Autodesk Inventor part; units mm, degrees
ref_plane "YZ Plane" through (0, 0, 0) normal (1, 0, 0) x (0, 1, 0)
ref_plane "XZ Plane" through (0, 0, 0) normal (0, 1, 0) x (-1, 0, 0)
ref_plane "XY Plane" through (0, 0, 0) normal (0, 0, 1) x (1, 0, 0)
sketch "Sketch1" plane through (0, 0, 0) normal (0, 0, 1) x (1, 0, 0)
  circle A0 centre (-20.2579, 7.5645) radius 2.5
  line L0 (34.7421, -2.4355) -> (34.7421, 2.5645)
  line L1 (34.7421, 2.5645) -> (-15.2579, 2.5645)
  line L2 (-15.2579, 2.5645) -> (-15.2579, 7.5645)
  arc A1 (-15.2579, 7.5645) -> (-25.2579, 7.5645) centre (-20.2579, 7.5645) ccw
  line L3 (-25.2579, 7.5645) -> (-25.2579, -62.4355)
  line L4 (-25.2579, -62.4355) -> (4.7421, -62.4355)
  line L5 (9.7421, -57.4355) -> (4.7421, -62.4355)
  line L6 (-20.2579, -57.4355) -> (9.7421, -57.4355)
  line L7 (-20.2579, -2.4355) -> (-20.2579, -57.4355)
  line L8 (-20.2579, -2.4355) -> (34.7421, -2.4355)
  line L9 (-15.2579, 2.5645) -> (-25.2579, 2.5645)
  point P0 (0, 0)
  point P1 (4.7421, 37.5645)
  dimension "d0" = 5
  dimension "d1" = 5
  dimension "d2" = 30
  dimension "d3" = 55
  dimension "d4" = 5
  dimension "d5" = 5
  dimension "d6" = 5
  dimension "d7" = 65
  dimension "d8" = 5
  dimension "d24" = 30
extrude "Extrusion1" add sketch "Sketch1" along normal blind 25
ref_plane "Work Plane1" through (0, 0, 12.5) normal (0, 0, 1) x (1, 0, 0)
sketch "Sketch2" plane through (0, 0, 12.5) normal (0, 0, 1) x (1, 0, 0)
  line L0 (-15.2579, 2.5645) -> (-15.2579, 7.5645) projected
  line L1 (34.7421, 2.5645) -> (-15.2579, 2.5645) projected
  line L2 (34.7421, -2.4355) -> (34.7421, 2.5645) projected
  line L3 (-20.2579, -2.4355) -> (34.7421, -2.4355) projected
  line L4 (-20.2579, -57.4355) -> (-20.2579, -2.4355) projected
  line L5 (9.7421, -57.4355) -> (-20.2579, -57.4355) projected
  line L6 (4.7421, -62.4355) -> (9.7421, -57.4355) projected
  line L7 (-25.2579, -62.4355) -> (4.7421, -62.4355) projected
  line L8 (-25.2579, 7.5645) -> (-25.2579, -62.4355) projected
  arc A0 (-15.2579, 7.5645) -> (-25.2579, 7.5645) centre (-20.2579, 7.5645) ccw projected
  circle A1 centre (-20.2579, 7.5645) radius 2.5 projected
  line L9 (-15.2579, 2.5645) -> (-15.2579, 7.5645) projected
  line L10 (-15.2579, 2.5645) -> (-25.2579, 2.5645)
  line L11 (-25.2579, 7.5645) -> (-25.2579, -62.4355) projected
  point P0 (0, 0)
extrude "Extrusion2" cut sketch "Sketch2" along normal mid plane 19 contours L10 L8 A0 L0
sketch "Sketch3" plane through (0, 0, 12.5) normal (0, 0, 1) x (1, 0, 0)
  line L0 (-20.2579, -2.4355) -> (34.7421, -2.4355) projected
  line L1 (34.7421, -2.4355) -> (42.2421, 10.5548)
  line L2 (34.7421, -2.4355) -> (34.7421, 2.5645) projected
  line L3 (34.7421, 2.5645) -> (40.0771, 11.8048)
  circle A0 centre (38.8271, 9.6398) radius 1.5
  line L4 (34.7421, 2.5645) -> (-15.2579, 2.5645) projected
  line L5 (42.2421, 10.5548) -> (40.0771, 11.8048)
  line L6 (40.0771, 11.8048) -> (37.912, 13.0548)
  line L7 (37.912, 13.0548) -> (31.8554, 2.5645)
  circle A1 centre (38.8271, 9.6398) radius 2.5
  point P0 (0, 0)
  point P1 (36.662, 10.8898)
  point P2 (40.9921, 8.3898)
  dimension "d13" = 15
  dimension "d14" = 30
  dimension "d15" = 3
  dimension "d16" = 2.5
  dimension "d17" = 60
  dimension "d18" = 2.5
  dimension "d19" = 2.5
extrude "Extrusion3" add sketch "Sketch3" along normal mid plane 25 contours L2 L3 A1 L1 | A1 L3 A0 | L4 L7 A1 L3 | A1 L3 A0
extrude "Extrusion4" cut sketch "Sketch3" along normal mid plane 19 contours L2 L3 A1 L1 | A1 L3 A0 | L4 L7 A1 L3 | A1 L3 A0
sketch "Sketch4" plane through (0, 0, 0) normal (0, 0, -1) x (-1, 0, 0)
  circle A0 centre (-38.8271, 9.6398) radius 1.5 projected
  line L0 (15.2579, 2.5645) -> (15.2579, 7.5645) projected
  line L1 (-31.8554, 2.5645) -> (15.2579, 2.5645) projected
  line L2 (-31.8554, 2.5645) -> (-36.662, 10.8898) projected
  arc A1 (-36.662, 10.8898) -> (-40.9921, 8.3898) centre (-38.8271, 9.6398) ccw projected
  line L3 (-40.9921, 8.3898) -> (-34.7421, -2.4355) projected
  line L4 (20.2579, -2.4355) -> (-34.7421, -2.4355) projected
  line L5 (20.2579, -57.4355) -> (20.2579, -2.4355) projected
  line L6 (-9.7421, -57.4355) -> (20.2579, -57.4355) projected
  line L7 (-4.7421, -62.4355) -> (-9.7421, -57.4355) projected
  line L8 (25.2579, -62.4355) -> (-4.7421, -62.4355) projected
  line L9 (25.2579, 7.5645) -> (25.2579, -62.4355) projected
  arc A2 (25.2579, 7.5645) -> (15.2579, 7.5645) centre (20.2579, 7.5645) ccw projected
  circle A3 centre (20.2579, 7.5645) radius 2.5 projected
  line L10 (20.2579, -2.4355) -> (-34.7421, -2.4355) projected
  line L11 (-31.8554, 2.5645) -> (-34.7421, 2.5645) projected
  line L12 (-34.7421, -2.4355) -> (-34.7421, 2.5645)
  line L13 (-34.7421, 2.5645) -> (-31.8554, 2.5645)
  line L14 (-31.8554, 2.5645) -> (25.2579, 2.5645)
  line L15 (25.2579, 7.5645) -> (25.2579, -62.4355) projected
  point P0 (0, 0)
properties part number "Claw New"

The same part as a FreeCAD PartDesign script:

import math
import FreeCAD as App
import Part
import Sketcher
Q = App.Units.Quantity

doc = App.newDocument("Part")
body = doc.addObject("PartDesign::Body", "Body")

# Sketch on XY plane
sketch1 = doc.addObject("Sketcher::SketchObject", "Sketch")
body.addObject(sketch1)
sketch1.AttachmentSupport = (doc.XY_Plane, [""])
sketch1.MapMode = "FlatFace"
sketch1.addGeometry(Part.LineSegment(App.Vector(-20.3, -2.4, 0), App.Vector(34.7, -2.4, 0)), False)
sketch1.addGeometry(Part.LineSegment(App.Vector(34.7, -2.4, 0), App.Vector(34.7, 2.6, 0)), False)
sketch1.addGeometry(Part.LineSegment(App.Vector(34.7, 2.6, 0), App.Vector(-15.3, 2.6, 0)), False)
sketch1.addGeometry(Part.LineSegment(App.Vector(-15.3, 2.6, 0), App.Vector(-15.3, 7.6, 0)), False)
sketch1.addGeometry(Part.ArcOfCircle(Part.Circle(App.Vector(-20.3, 7.6, 0), App.Vector(0, 0, 1), 5), math.radians(0), math.radians(180)), False)
sketch1.addGeometry(Part.LineSegment(App.Vector(-25.3, 7.6, 0), App.Vector(-25.3, -62.4, 0)), False)
sketch1.addGeometry(Part.LineSegment(App.Vector(-25.3, -62.4, 0), App.Vector(4.7, -62.4, 0)), False)
sketch1.addGeometry(Part.LineSegment(App.Vector(4.7, -62.4, 0), App.Vector(9.7, -57.4, 0)), False)
sketch1.addGeometry(Part.LineSegment(App.Vector(9.7, -57.4, 0), App.Vector(-20.3, -57.4, 0)), False)
sketch1.addGeometry(Part.LineSegment(App.Vector(-20.3, -57.4, 0), App.Vector(-20.3, -2.4, 0)), False)
sketch1.addGeometry(Part.Circle(App.Vector(-20.3, 7.6, 0), App.Vector(0, 0, 1), 2.5), False)
sketch1.addConstraint(Sketcher.Constraint("Coincident", 0, 2, 1, 1))
sketch1.addConstraint(Sketcher.Constraint("Coincident", 1, 2, 2, 1))
sketch1.addConstraint(Sketcher.Constraint("Coincident", 2, 2, 3, 1))
sketch1.addConstraint(Sketcher.Constraint("Tangent", 3, 2, 4, 1))
sketch1.addConstraint(Sketcher.Constraint("Tangent", 4, 2, 5, 1))
sketch1.addConstraint(Sketcher.Constraint("Coincident", 5, 2, 6, 1))
sketch1.addConstraint(Sketcher.Constraint("Coincident", 6, 2, 7, 1))
sketch1.addConstraint(Sketcher.Constraint("Coincident", 7, 2, 8, 1))
sketch1.addConstraint(Sketcher.Constraint("Coincident", 8, 2, 9, 1))
sketch1.addConstraint(Sketcher.Constraint("Coincident", 9, 2, 0, 1))
sketch1.addConstraint(Sketcher.Constraint("Horizontal", 0))
sketch1.addConstraint(Sketcher.Constraint("Vertical", 1))
sketch1.addConstraint(Sketcher.Constraint("Horizontal", 2))
sketch1.addConstraint(Sketcher.Constraint("Vertical", 3))
sketch1.addConstraint(Sketcher.Constraint("Vertical", 5))
sketch1.addConstraint(Sketcher.Constraint("Horizontal", 6))
sketch1.addConstraint(Sketcher.Constraint("Horizontal", 8))
sketch1.addConstraint(Sketcher.Constraint("Vertical", 9))
sketch1.addConstraint(Sketcher.Constraint("Coincident", 10, 3, 4, 3))
sketch1.addConstraint(Sketcher.Constraint("Vertical", 10, 3, 8, 2))
sketch1.addConstraint(Sketcher.Constraint("Equal", 6, 8))
sketch1.addConstraint(Sketcher.Constraint("Equal", 1, 3))
sketch1.addConstraint(Sketcher.Constraint("Equal", 0, 9))
sketch1.addConstraint(Sketcher.Constraint("Diameter", 10, Q("5 mm")))
sketch1.addConstraint(Sketcher.Constraint("Radius", 4, Q("5 mm")))
sketch1.addConstraint(Sketcher.Constraint("DistanceX", 0, 1, 0, 2, Q("55 mm")))
sketch1.addConstraint(Sketcher.Constraint("DistanceX", 6, 1, 6, 2, Q("30 mm")))
sketch1.addConstraint(Sketcher.Constraint("DistanceY", 1, 1, 1, 2, Q("5 mm")))
sketch1.addConstraint(Sketcher.Constraint("DistanceY", 5, 2, 2, 2, Q("65 mm")))
sketch1.addConstraint(Sketcher.Constraint("DistanceX", 4, 3, -1, 1, Q("20.258 mm")))
sketch1.addConstraint(Sketcher.Constraint("DistanceY", -1, 1, 4, 3, Q("7.5645 mm")))
pad1 = doc.addObject("PartDesign::Pad", "Pad")
body.addObject(pad1)
pad1.Profile = sketch1
pad1.Length = 25

# Sketch on XY plane
sketch2 = doc.addObject("Sketcher::SketchObject", "Sketch001")
body.addObject(sketch2)
sketch2.AttachmentSupport = (doc.XY_Plane, [""])
sketch2.MapMode = "FlatFace"
sketch2.AttachmentOffset = App.Placement(App.Vector(0, 0, 12.5), App.Rotation())
sketch2.addGeometry(Part.LineSegment(App.Vector(-25.3, 2.6, 0), App.Vector(-15.3, 2.6, 0)), False)
sketch2.addGeometry(Part.LineSegment(App.Vector(-15.3, 2.6, 0), App.Vector(-15.3, 7.6, 0)), False)
sketch2.addGeometry(Part.ArcOfCircle(Part.Circle(App.Vector(-20.3, 7.6, 0), App.Vector(0, 0, 1), 5), math.radians(0), math.radians(180)), False)
sketch2.addGeometry(Part.LineSegment(App.Vector(-25.3, 7.6, 0), App.Vector(-25.3, 2.6, 0)), False)
sketch2.addGeometry(Part.Circle(App.Vector(-20.3, 7.6, 0), App.Vector(0, 0, 1), 2.5), False)
sketch2.addConstraint(Sketcher.Constraint("Coincident", 0, 2, 1, 1))
sketch2.addConstraint(Sketcher.Constraint("Tangent", 1, 2, 2, 1))
sketch2.addConstraint(Sketcher.Constraint("Tangent", 2, 2, 3, 1))
sketch2.addConstraint(Sketcher.Constraint("Coincident", 3, 2, 0, 1))
sketch2.addConstraint(Sketcher.Constraint("Horizontal", 0))
sketch2.addConstraint(Sketcher.Constraint("Vertical", 1))
sketch2.addConstraint(Sketcher.Constraint("Vertical", 3))
sketch2.addConstraint(Sketcher.Constraint("Coincident", 4, 3, 2, 3))
sketch2.addConstraint(Sketcher.Constraint("Diameter", 4, Q("5 mm")))
sketch2.addConstraint(Sketcher.Constraint("Radius", 2, Q("5 mm")))
sketch2.addConstraint(Sketcher.Constraint("DistanceY", 1, 1, 1, 2, Q("5 mm")))
sketch2.addConstraint(Sketcher.Constraint("DistanceX", 2, 3, -1, 1, Q("20.258 mm")))
sketch2.addConstraint(Sketcher.Constraint("DistanceY", -1, 1, 2, 3, Q("7.5645 mm")))
pocket1 = doc.addObject("PartDesign::Pocket", "Pocket")
body.addObject(pocket1)
pocket1.Profile = sketch2
pocket1.Length = 19
pocket1.Midplane = True

# Sketch on XY plane
sketch3 = doc.addObject("Sketcher::SketchObject", "Sketch002")
body.addObject(sketch3)
sketch3.AttachmentSupport = (doc.XY_Plane, [""])
sketch3.MapMode = "FlatFace"
sketch3.AttachmentOffset = App.Placement(App.Vector(0, 0, 12.5), App.Rotation())
sketch3.addGeometry(Part.LineSegment(App.Vector(34.7, 2.6, 0), App.Vector(34.7, -2.4, 0)), False)
sketch3.addGeometry(Part.LineSegment(App.Vector(34.7, -2.4, 0), App.Vector(41, 8.4, 0)), False)
sketch3.addGeometry(Part.ArcOfCircle(Part.Circle(App.Vector(38.8, 9.6, 0), App.Vector(0, 0, 1), 2.5), math.radians(-30), math.radians(150)), False)
sketch3.addGeometry(Part.LineSegment(App.Vector(36.7, 10.9, 0), App.Vector(31.9, 2.6, 0)), False)
sketch3.addGeometry(Part.LineSegment(App.Vector(31.9, 2.6, 0), App.Vector(34.7, 2.6, 0)), False)
sketch3.addGeometry(Part.Circle(App.Vector(38.8, 9.6, 0), App.Vector(0, 0, 1), 1.5), False)
sketch3.addConstraint(Sketcher.Constraint("Coincident", 0, 2, 1, 1))
sketch3.addConstraint(Sketcher.Constraint("Tangent", 1, 2, 2, 1))
sketch3.addConstraint(Sketcher.Constraint("Tangent", 2, 2, 3, 1))
sketch3.addConstraint(Sketcher.Constraint("Coincident", 3, 2, 4, 1))
sketch3.addConstraint(Sketcher.Constraint("Coincident", 4, 2, 0, 1))
sketch3.addConstraint(Sketcher.Constraint("Vertical", 0))
sketch3.addConstraint(Sketcher.Constraint("Horizontal", 4))
sketch3.addConstraint(Sketcher.Constraint("Coincident", 5, 3, 2, 3))
sketch3.addConstraint(Sketcher.Constraint("Parallel", 1, 3))
sketch3.addConstraint(Sketcher.Constraint("Diameter", 5, Q("3 mm")))
sketch3.addConstraint(Sketcher.Constraint("Radius", 2, Q("2.5 mm")))
sketch3.addConstraint(Sketcher.Constraint("Angle", 1, Q("59.9998 deg")))
sketch3.addConstraint(Sketcher.Constraint("DistanceY", 0, 2, 0, 1, Q("5 mm")))
sketch3.addConstraint(Sketcher.Constraint("Distance", 1, Q("12.5 mm")))
sketch3.addConstraint(Sketcher.Constraint("DistanceX", -1, 1, 2, 3, Q("38.827 mm")))
sketch3.addConstraint(Sketcher.Constraint("DistanceY", -1, 1, 2, 3, Q("9.6398 mm")))
pad2 = doc.addObject("PartDesign::Pad", "Pad001")
body.addObject(pad2)
pad2.Profile = sketch3
pad2.Length = 25
pad2.Midplane = True

# Sketch on XY plane
sketch4 = doc.addObject("Sketcher::SketchObject", "Sketch003")
body.addObject(sketch4)
sketch4.AttachmentSupport = (doc.XY_Plane, [""])
sketch4.MapMode = "FlatFace"
sketch4.AttachmentOffset = App.Placement(App.Vector(0, 0, 12.5), App.Rotation())
sketch4.addGeometry(Part.LineSegment(App.Vector(34.7, 2.6, 0), App.Vector(34.7, -2.4, 0)), False)
sketch4.addGeometry(Part.LineSegment(App.Vector(34.7, -2.4, 0), App.Vector(41, 8.4, 0)), False)
sketch4.addGeometry(Part.ArcOfCircle(Part.Circle(App.Vector(38.8, 9.6, 0), App.Vector(0, 0, 1), 2.5), math.radians(-30), math.radians(150)), False)
sketch4.addGeometry(Part.LineSegment(App.Vector(36.7, 10.9, 0), App.Vector(31.9, 2.6, 0)), False)
sketch4.addGeometry(Part.LineSegment(App.Vector(31.9, 2.6, 0), App.Vector(34.7, 2.6, 0)), False)
sketch4.addGeometry(Part.Circle(App.Vector(38.8, 9.6, 0), App.Vector(0, 0, 1), 1.5), False)
sketch4.addConstraint(Sketcher.Constraint("Coincident", 0, 2, 1, 1))
sketch4.addConstraint(Sketcher.Constraint("Tangent", 1, 2, 2, 1))
sketch4.addConstraint(Sketcher.Constraint("Tangent", 2, 2, 3, 1))
sketch4.addConstraint(Sketcher.Constraint("Coincident", 3, 2, 4, 1))
sketch4.addConstraint(Sketcher.Constraint("Coincident", 4, 2, 0, 1))
sketch4.addConstraint(Sketcher.Constraint("Vertical", 0))
sketch4.addConstraint(Sketcher.Constraint("Horizontal", 4))
sketch4.addConstraint(Sketcher.Constraint("Coincident", 5, 3, 2, 3))
sketch4.addConstraint(Sketcher.Constraint("Parallel", 1, 3))
sketch4.addConstraint(Sketcher.Constraint("Diameter", 5, Q("3 mm")))
sketch4.addConstraint(Sketcher.Constraint("Radius", 2, Q("2.5 mm")))
sketch4.addConstraint(Sketcher.Constraint("Angle", 1, Q("59.9998 deg")))
sketch4.addConstraint(Sketcher.Constraint("DistanceY", 0, 2, 0, 1, Q("5 mm")))
sketch4.addConstraint(Sketcher.Constraint("Distance", 1, Q("12.5 mm")))
sketch4.addConstraint(Sketcher.Constraint("DistanceX", -1, 1, 2, 3, Q("38.827 mm")))
sketch4.addConstraint(Sketcher.Constraint("DistanceY", -1, 1, 2, 3, Q("9.6398 mm")))
pocket2 = doc.addObject("PartDesign::Pocket", "Pocket001")
body.addObject(pocket2)
pocket2.Profile = sketch4
pocket2.Length = 19
pocket2.Midplane = True

doc.recompute()
